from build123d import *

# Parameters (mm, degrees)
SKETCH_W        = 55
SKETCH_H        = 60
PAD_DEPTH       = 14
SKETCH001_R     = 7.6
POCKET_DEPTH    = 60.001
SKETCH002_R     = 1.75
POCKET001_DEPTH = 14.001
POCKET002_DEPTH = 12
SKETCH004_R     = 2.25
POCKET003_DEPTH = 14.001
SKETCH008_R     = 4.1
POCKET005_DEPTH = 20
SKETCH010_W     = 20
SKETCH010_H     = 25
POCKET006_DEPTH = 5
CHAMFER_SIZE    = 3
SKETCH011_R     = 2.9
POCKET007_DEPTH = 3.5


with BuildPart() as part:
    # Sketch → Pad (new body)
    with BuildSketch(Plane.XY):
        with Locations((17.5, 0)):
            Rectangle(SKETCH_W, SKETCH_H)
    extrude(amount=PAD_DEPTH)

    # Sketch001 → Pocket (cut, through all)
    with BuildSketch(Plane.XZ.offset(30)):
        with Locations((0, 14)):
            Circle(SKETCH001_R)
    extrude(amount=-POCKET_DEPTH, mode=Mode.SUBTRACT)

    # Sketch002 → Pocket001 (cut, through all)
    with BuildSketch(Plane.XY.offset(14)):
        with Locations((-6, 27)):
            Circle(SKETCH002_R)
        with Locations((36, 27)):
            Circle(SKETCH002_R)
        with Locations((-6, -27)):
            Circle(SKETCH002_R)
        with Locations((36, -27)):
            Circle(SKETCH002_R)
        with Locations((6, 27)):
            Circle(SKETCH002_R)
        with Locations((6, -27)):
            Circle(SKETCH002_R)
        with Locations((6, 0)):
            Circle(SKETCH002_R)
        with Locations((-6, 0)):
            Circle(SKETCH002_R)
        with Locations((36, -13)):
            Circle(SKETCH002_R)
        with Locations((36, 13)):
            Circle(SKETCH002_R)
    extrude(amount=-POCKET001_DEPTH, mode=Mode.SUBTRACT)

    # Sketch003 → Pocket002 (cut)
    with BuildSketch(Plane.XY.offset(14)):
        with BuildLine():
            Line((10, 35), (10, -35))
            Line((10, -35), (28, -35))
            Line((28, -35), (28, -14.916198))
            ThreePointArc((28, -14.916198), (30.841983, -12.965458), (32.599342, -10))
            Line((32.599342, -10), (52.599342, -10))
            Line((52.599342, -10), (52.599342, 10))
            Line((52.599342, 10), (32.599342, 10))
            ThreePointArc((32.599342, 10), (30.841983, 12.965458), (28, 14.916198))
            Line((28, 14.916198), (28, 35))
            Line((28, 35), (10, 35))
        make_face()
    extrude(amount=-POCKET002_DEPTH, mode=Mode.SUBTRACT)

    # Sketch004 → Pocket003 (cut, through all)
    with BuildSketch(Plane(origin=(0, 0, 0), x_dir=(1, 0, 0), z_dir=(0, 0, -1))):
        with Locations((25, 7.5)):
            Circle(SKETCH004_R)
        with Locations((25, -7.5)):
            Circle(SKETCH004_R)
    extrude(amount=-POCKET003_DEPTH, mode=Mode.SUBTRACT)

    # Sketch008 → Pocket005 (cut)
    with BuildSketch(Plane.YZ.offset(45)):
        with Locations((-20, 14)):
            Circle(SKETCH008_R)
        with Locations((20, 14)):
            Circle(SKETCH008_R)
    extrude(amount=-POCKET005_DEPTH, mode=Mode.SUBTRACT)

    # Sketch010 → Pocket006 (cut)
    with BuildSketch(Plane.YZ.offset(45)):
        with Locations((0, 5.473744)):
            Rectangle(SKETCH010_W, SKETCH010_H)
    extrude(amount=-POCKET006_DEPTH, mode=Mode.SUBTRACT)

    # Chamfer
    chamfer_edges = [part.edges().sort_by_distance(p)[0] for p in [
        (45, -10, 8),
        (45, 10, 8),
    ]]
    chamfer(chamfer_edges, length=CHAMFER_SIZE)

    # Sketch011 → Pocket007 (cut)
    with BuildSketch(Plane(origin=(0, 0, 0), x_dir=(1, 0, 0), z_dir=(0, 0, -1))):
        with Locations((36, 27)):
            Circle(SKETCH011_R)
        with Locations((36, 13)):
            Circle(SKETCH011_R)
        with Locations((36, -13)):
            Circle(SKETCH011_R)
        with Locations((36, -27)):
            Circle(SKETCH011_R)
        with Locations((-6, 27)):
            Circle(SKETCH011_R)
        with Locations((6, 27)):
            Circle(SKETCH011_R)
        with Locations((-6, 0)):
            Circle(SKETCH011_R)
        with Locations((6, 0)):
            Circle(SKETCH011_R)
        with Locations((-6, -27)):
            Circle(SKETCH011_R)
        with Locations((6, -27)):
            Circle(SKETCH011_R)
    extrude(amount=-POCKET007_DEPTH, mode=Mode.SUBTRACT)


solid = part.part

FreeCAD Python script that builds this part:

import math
import FreeCAD as App
import Part
import Sketcher

V = App.Vector


def edges_at(feature, points):
    """Names of the edges that pass closest to the given points."""
    edges = feature.Shape.Edges
    near = lambda p: min(range(len(edges)), key=lambda i: edges[i].distToShape(Part.Vertex(*p))[0])
    return sorted({f"Edge{near(p) + 1}" for p in points})


def add_polygon(sketch, points):
    """Adds a closed chain of lines whose ends are joined by coincident constraints."""
    first, n = sketch.GeometryCount, len(points)
    for a, b in zip(points, points[1:] + points[:1]):
        sketch.addGeometry(Part.LineSegment(App.Vector(*a, 0), App.Vector(*b, 0)), False)
    for i in range(n):
        sketch.addConstraint(Sketcher.Constraint("Coincident", first + i, 2, first + (i + 1) % n, 1))

doc = App.newDocument("Part")
body = doc.addObject("PartDesign::Body", "Body")

sketch1 = doc.addObject("Sketcher::SketchObject", "Sketch")
body.addObject(sketch1)
sketch1.AttachmentSupport = (doc.XY_Plane, [""])
sketch1.MapMode = "FlatFace"
add_polygon(sketch1, [(-10, 30), (-10, -30), (45, -30), (45, 30)])
sketch1.addConstraint([
    Sketcher.Constraint("Vertical", 0),
    Sketcher.Constraint("Horizontal", 1),
    Sketcher.Constraint("Vertical", 2),
    Sketcher.Constraint("Horizontal", 3),
    Sketcher.Constraint("DistanceX", 1, 1, 1, 2, 55.0),
    Sketcher.Constraint("DistanceY", 0, 2, 0, 1, 60.0),
    Sketcher.Constraint("DistanceX", 0, 2, -1, 1, 10.0),
    Sketcher.Constraint("DistanceY", 0, 2, -1, 1, 30.0),
])
pad1 = doc.addObject("PartDesign::Pad", "Pad")
body.addObject(pad1)
pad1.Profile = sketch1
pad1.Length = 14

sketch2 = doc.addObject("Sketcher::SketchObject", "Sketch001")
body.addObject(sketch2)
sketch2.AttachmentSupport = (doc.XZ_Plane, [""])
sketch2.MapMode = "FlatFace"
sketch2.AttachmentOffset = App.Placement(V(0, 0, 30), App.Rotation())
sketch2.addGeometry(Part.Circle(V(0, 14, 0), V(0, 0, 1), 8), False)
sketch2.addConstraint([
    Sketcher.Constraint("PointOnObject", 0, 3, -2),
    Sketcher.Constraint("Diameter", 0, 15.2),
    Sketcher.Constraint("DistanceY", -1, 1, 0, 3, 14.0),
])
pocket1 = doc.addObject("PartDesign::Pocket", "Pocket")
body.addObject(pocket1)
pocket1.Profile = sketch2
pocket1.Type = "ThroughAll"

sketch3 = doc.addObject("Sketcher::SketchObject", "Sketch002")
body.addObject(sketch3)
sketch3.AttachmentSupport = (doc.XY_Plane, [""])
sketch3.MapMode = "FlatFace"
sketch3.AttachmentOffset = App.Placement(V(0, 0, 14), App.Rotation())
sketch3.addGeometry([
    Part.Circle(V(-6, 27, 0), V(0, 0, 1), 1.8),
    Part.Circle(V(36, 27, 0), V(0, 0, 1), 1.8),
    Part.Circle(V(-6, -27, 0), V(0, 0, 1), 1.8),
    Part.Circle(V(36, -27, 0), V(0, 0, 1), 1.8),
    Part.Circle(V(6, 27, 0), V(0, 0, 1), 1.8),
    Part.Circle(V(6, -27, 0), V(0, 0, 1), 1.8),
    Part.Circle(V(6, 0, 0), V(0, 0, 1), 1.8),
    Part.Circle(V(-6, 0, 0), V(0, 0, 1), 1.8),
    Part.Circle(V(36, -13, 0), V(0, 0, 1), 1.8),
    Part.Circle(V(36, 13, 0), V(0, 0, 1), 1.8),
], False)
sketch3.addConstraint([
    Sketcher.Constraint("Equal", 0, 1),
    Sketcher.Constraint("Equal", 1, 2),
    Sketcher.Constraint("Equal", 2, 3),
    Sketcher.Constraint("Equal", 3, 4),
    Sketcher.Constraint("Equal", 4, 5),
    Sketcher.Constraint("Equal", 5, 6),
    Sketcher.Constraint("Equal", 6, 7),
    Sketcher.Constraint("Equal", 7, 8),
    Sketcher.Constraint("Equal", 8, 9),
    Sketcher.Constraint("Symmetric", 2, 3, 4, 3, -1, 1),
    Sketcher.Constraint("Symmetric", 0, 3, 5, 3, -1, 1),
    Sketcher.Constraint("Symmetric", 6, 3, 7, 3, -1, 1),
    Sketcher.Constraint("Symmetric", 0, 3, 4, 3, -2),
    Sketcher.Constraint("Symmetric", 1, 3, 3, 3, -1),
    Sketcher.Constraint("Symmetric", 8, 3, 9, 3, -1),
    Sketcher.Constraint("PointOnObject", 6, 3, -1),
    Sketcher.Constraint("Horizontal", 0, 3, 1, 3),
    Sketcher.Constraint("Vertical", 5, 3, 6, 3),
    Sketcher.Constraint("Vertical", 3, 3, 8, 3),
    Sketcher.Constraint("Diameter", 0, 3.5),
    Sketcher.Constraint("DistanceX", 0, 3, -1, 1, 6.0),
    Sketcher.Constraint("DistanceY", -1, 1, 0, 3, 27.0),
    Sketcher.Constraint("DistanceX", -1, 1, 1, 3, 36.0),
    Sketcher.Constraint("DistanceY", 8, 3, -1, 1, 13.0),
])
pocket2 = doc.addObject("PartDesign::Pocket", "Pocket001")
body.addObject(pocket2)
pocket2.Profile = sketch3
pocket2.Type = "ThroughAll"

sketch4 = doc.addObject("Sketcher::SketchObject", "Sketch003")
body.addObject(sketch4)
sketch4.AttachmentSupport = (doc.XY_Plane, [""])
sketch4.MapMode = "FlatFace"
sketch4.AttachmentOffset = App.Placement(V(0, 0, 14), App.Rotation())
sketch4.addGeometry([
    Part.LineSegment(V(10, 35, 0), V(10, -35, 0)),
    Part.LineSegment(V(10, -35, 0), V(28, -35, 0)),
    Part.LineSegment(V(28, -35, 0), V(28, -15, 0)),
    Part.ArcOfCircle(Part.Circle(V(25, -8, 0), V(0, 0, 1), 8), math.radians(-68), math.radians(-18)),
    Part.LineSegment(V(33, -10, 0), V(53, -10, 0)),
    Part.LineSegment(V(53, -10, 0), V(53, 10, 0)),
    Part.LineSegment(V(53, 10, 0), V(33, 10, 0)),
    Part.ArcOfCircle(Part.Circle(V(25, 8, 0), V(0, 0, 1), 8), math.radians(18), math.radians(68)),
    Part.LineSegment(V(28, 15, 0), V(28, 35, 0)),
    Part.LineSegment(V(28, 35, 0), V(10, 35, 0)),
], False)
sketch4.addConstraint([
    Sketcher.Constraint("Coincident", 0, 2, 1, 1),
    Sketcher.Constraint("Coincident", 1, 2, 2, 1),
    Sketcher.Constraint("Coincident", 2, 2, 3, 1),
    Sketcher.Constraint("Coincident", 3, 2, 4, 1),
    Sketcher.Constraint("Coincident", 4, 2, 5, 1),
    Sketcher.Constraint("Coincident", 5, 2, 6, 1),
    Sketcher.Constraint("Coincident", 6, 2, 7, 1),
    Sketcher.Constraint("Coincident", 7, 2, 8, 1),
    Sketcher.Constraint("Coincident", 8, 2, 9, 1),
    Sketcher.Constraint("Coincident", 9, 2, 0, 1),
    Sketcher.Constraint("Vertical", 0),
    Sketcher.Constraint("Horizontal", 1),
    Sketcher.Constraint("Vertical", 2),
    Sketcher.Constraint("Horizontal", 4),
    Sketcher.Constraint("Vertical", 5),
    Sketcher.Constraint("Horizontal", 6),
    Sketcher.Constraint("Vertical", 8),
    Sketcher.Constraint("Horizontal", 9),
    Sketcher.Constraint("Equal", 3, 7),
    Sketcher.Constraint("Symmetric", 3, 3, 7, 3, -1),
    Sketcher.Constraint("Symmetric", 1, 2, 8, 2, -1),
    Sketcher.Constraint("Vertical", 3, 2, 6, 2),
    Sketcher.Constraint("Equal", 6, 5),
    Sketcher.Constraint("Radius", 3, 7.999999),
    Sketcher.Constraint("DistanceX", 1, 1, 1, 2, 18.0),
    Sketcher.Constraint("DistanceX", 4, 1, 4, 2, 20.0),
    Sketcher.Constraint("DistanceY", 0, 2, 0, 1, 70.0),
    Sketcher.Constraint("DistanceX", -1, 1, 3, 3, 25.000001),
    Sketcher.Constraint("DistanceX", -1, 1, 0, 2, 10.0),
    Sketcher.Constraint("DistanceY", 3, 3, 7, 3, 15.0),
])
pocket3 = doc.addObject("PartDesign::Pocket", "Pocket002")
body.addObject(pocket3)
pocket3.Profile = sketch4
pocket3.Length = 12

sketch5 = doc.addObject("Sketcher::SketchObject", "Sketch004")
body.addObject(sketch5)
sketch5.AttachmentSupport = (doc.XY_Plane, [""])
sketch5.MapMode = "FlatFace"
sketch5.addGeometry([
    Part.Circle(V(25, -7.5, 0), V(0, 0, 1), 2.2),
    Part.Circle(V(25, 7.5, 0), V(0, 0, 1), 2.2),
], False)
sketch5.addConstraint([
    Sketcher.Constraint("Equal", 0, 1),
    Sketcher.Constraint("Symmetric", 0, 3, 1, 3, -1),
    Sketcher.Constraint("Diameter", 0, 4.5),
    Sketcher.Constraint("DistanceX", -1, 1, 0, 3, 25.0),
    Sketcher.Constraint("DistanceY", 0, 3, 1, 3, 15.0),
])
pocket4 = doc.addObject("PartDesign::Pocket", "Pocket003")
body.addObject(pocket4)
pocket4.Profile = sketch5
pocket4.Type = "ThroughAll"
pocket4.Reversed = True

sketch6 = doc.addObject("Sketcher::SketchObject", "Sketch005")
body.addObject(sketch6)
sketch6.AttachmentSupport = (doc.YZ_Plane, [""])
sketch6.MapMode = "FlatFace"
sketch6.AttachmentOffset = App.Placement(V(0, 0, 45), App.Rotation())
sketch6.addGeometry([
    Part.Circle(V(-20, 14, 0), V(0, 0, 1), 4.1),
    Part.Circle(V(20, 14, 0), V(0, 0, 1), 4.1),
], False)
sketch6.addConstraint([
    Sketcher.Constraint("Equal", 0, 1),
    Sketcher.Constraint("Symmetric", 0, 3, 1, 3, -2),
    Sketcher.Constraint("Diameter", 0, 8.2),
    Sketcher.Constraint("DistanceX", 0, 3, -1, 1, 20.0),
    Sketcher.Constraint("DistanceY", -1, 1, 0, 3, 14.0),
])
pocket5 = doc.addObject("PartDesign::Pocket", "Pocket004")
body.addObject(pocket5)
pocket5.Profile = sketch6
pocket5.Length = 20

sketch7 = doc.addObject("Sketcher::SketchObject", "Sketch006")
body.addObject(sketch7)
sketch7.AttachmentSupport = (doc.YZ_Plane, [""])
sketch7.MapMode = "FlatFace"
sketch7.AttachmentOffset = App.Placement(V(0, 0, 45), App.Rotation())
add_polygon(sketch7, [(-10, 18), (-10, -7), (10, -7), (10, 18)])
sketch7.addConstraint([
    Sketcher.Constraint("Vertical", 0),
    Sketcher.Constraint("Horizontal", 1),
    Sketcher.Constraint("Vertical", 2),
    Sketcher.Constraint("Horizontal", 3),
    Sketcher.Constraint("DistanceX", 1, 1, 1, 2, 20.0),
    Sketcher.Constraint("DistanceY", 0, 2, 0, 1, 25.0),
    Sketcher.Constraint("DistanceX", 0, 2, -1, 1, 10.0),
    Sketcher.Constraint("DistanceY", 0, 2, -1, 1, 7.026256),
])
pocket6 = doc.addObject("PartDesign::Pocket", "Pocket005")
body.addObject(pocket6)
pocket6.Profile = sketch7
pocket6.Length = 5
doc.recompute()

chamfer = doc.addObject("PartDesign::Chamfer", "Chamfer")
body.addObject(chamfer)
chamfer.Base = (pocket6, edges_at(pocket6, [(45, -10, 7), (45, 10, 7)]))
chamfer.Size = 3

sketch8 = doc.addObject("Sketcher::SketchObject", "Sketch007")
body.addObject(sketch8)
sketch8.AttachmentSupport = (doc.XY_Plane, [""])
sketch8.MapMode = "FlatFace"
sketch8.addGeometry([
    Part.Circle(V(36, -27, 0), V(0, 0, 1), 2.9),
    Part.Circle(V(36, -13, 0), V(0, 0, 1), 2.9),
    Part.Circle(V(36, 13, 0), V(0, 0, 1), 2.9),
    Part.Circle(V(36, 27, 0), V(0, 0, 1), 2.9),
    Part.Circle(V(-6, -27, 0), V(0, 0, 1), 2.9),
    Part.Circle(V(6, -27, 0), V(0, 0, 1), 2.9),
    Part.Circle(V(-6, 0, 0), V(0, 0, 1), 2.9),
    Part.Circle(V(6, 0, 0), V(0, 0, 1), 2.9),
    Part.Circle(V(-6, 27, 0), V(0, 0, 1), 2.9),
    Part.Circle(V(6, 27, 0), V(0, 0, 1), 2.9),
], False)
sketch8.addConstraint([
    Sketcher.Constraint("Equal", 0, 1),
    Sketcher.Constraint("Equal", 1, 2),
    Sketcher.Constraint("Equal", 2, 3),
    Sketcher.Constraint("Equal", 3, 4),
    Sketcher.Constraint("Equal", 4, 5),
    Sketcher.Constraint("Equal", 5, 6),
    Sketcher.Constraint("Equal", 6, 7),
    Sketcher.Constraint("Equal", 7, 8),
    Sketcher.Constraint("Equal", 8, 9),
    Sketcher.Constraint("Symmetric", 6, 3, 7, 3, -1, 1),
    Sketcher.Constraint("Symmetric", 5, 3, 8, 3, -1, 1),
    Sketcher.Constraint("Symmetric", 4, 3, 9, 3, -1, 1),
    Sketcher.Constraint("Symmetric", 4, 3, 5, 3, -2),
    Sketcher.Constraint("Symmetric", 1, 3, 2, 3, -1),
    Sketcher.Constraint("Symmetric", 0, 3, 3, 3, -1),
    Sketcher.Constraint("PointOnObject", 6, 3, -1),
    Sketcher.Constraint("Horizontal", 0, 3, 4, 3),
    Sketcher.Constraint("Vertical", 0, 3, 1, 3),
    Sketcher.Constraint("Vertical", 4, 3, 6, 3),
    Sketcher.Constraint("Diameter", 0, 5.8),
    Sketcher.Constraint("DistanceX", -1, 1, 0, 3, 36.0),
    Sketcher.Constraint("DistanceY", 0, 3, -1, 1, 27.0),
    Sketcher.Constraint("DistanceY", 1, 3, -1, 1, 13.0),
    Sketcher.Constraint("DistanceX", 4, 3, -1, 1, 6.0),
])
pocket7 = doc.addObject("PartDesign::Pocket", "Pocket006")
body.addObject(pocket7)
pocket7.Profile = sketch8
pocket7.Length = 3.5
pocket7.Reversed = True

doc.recompute()
